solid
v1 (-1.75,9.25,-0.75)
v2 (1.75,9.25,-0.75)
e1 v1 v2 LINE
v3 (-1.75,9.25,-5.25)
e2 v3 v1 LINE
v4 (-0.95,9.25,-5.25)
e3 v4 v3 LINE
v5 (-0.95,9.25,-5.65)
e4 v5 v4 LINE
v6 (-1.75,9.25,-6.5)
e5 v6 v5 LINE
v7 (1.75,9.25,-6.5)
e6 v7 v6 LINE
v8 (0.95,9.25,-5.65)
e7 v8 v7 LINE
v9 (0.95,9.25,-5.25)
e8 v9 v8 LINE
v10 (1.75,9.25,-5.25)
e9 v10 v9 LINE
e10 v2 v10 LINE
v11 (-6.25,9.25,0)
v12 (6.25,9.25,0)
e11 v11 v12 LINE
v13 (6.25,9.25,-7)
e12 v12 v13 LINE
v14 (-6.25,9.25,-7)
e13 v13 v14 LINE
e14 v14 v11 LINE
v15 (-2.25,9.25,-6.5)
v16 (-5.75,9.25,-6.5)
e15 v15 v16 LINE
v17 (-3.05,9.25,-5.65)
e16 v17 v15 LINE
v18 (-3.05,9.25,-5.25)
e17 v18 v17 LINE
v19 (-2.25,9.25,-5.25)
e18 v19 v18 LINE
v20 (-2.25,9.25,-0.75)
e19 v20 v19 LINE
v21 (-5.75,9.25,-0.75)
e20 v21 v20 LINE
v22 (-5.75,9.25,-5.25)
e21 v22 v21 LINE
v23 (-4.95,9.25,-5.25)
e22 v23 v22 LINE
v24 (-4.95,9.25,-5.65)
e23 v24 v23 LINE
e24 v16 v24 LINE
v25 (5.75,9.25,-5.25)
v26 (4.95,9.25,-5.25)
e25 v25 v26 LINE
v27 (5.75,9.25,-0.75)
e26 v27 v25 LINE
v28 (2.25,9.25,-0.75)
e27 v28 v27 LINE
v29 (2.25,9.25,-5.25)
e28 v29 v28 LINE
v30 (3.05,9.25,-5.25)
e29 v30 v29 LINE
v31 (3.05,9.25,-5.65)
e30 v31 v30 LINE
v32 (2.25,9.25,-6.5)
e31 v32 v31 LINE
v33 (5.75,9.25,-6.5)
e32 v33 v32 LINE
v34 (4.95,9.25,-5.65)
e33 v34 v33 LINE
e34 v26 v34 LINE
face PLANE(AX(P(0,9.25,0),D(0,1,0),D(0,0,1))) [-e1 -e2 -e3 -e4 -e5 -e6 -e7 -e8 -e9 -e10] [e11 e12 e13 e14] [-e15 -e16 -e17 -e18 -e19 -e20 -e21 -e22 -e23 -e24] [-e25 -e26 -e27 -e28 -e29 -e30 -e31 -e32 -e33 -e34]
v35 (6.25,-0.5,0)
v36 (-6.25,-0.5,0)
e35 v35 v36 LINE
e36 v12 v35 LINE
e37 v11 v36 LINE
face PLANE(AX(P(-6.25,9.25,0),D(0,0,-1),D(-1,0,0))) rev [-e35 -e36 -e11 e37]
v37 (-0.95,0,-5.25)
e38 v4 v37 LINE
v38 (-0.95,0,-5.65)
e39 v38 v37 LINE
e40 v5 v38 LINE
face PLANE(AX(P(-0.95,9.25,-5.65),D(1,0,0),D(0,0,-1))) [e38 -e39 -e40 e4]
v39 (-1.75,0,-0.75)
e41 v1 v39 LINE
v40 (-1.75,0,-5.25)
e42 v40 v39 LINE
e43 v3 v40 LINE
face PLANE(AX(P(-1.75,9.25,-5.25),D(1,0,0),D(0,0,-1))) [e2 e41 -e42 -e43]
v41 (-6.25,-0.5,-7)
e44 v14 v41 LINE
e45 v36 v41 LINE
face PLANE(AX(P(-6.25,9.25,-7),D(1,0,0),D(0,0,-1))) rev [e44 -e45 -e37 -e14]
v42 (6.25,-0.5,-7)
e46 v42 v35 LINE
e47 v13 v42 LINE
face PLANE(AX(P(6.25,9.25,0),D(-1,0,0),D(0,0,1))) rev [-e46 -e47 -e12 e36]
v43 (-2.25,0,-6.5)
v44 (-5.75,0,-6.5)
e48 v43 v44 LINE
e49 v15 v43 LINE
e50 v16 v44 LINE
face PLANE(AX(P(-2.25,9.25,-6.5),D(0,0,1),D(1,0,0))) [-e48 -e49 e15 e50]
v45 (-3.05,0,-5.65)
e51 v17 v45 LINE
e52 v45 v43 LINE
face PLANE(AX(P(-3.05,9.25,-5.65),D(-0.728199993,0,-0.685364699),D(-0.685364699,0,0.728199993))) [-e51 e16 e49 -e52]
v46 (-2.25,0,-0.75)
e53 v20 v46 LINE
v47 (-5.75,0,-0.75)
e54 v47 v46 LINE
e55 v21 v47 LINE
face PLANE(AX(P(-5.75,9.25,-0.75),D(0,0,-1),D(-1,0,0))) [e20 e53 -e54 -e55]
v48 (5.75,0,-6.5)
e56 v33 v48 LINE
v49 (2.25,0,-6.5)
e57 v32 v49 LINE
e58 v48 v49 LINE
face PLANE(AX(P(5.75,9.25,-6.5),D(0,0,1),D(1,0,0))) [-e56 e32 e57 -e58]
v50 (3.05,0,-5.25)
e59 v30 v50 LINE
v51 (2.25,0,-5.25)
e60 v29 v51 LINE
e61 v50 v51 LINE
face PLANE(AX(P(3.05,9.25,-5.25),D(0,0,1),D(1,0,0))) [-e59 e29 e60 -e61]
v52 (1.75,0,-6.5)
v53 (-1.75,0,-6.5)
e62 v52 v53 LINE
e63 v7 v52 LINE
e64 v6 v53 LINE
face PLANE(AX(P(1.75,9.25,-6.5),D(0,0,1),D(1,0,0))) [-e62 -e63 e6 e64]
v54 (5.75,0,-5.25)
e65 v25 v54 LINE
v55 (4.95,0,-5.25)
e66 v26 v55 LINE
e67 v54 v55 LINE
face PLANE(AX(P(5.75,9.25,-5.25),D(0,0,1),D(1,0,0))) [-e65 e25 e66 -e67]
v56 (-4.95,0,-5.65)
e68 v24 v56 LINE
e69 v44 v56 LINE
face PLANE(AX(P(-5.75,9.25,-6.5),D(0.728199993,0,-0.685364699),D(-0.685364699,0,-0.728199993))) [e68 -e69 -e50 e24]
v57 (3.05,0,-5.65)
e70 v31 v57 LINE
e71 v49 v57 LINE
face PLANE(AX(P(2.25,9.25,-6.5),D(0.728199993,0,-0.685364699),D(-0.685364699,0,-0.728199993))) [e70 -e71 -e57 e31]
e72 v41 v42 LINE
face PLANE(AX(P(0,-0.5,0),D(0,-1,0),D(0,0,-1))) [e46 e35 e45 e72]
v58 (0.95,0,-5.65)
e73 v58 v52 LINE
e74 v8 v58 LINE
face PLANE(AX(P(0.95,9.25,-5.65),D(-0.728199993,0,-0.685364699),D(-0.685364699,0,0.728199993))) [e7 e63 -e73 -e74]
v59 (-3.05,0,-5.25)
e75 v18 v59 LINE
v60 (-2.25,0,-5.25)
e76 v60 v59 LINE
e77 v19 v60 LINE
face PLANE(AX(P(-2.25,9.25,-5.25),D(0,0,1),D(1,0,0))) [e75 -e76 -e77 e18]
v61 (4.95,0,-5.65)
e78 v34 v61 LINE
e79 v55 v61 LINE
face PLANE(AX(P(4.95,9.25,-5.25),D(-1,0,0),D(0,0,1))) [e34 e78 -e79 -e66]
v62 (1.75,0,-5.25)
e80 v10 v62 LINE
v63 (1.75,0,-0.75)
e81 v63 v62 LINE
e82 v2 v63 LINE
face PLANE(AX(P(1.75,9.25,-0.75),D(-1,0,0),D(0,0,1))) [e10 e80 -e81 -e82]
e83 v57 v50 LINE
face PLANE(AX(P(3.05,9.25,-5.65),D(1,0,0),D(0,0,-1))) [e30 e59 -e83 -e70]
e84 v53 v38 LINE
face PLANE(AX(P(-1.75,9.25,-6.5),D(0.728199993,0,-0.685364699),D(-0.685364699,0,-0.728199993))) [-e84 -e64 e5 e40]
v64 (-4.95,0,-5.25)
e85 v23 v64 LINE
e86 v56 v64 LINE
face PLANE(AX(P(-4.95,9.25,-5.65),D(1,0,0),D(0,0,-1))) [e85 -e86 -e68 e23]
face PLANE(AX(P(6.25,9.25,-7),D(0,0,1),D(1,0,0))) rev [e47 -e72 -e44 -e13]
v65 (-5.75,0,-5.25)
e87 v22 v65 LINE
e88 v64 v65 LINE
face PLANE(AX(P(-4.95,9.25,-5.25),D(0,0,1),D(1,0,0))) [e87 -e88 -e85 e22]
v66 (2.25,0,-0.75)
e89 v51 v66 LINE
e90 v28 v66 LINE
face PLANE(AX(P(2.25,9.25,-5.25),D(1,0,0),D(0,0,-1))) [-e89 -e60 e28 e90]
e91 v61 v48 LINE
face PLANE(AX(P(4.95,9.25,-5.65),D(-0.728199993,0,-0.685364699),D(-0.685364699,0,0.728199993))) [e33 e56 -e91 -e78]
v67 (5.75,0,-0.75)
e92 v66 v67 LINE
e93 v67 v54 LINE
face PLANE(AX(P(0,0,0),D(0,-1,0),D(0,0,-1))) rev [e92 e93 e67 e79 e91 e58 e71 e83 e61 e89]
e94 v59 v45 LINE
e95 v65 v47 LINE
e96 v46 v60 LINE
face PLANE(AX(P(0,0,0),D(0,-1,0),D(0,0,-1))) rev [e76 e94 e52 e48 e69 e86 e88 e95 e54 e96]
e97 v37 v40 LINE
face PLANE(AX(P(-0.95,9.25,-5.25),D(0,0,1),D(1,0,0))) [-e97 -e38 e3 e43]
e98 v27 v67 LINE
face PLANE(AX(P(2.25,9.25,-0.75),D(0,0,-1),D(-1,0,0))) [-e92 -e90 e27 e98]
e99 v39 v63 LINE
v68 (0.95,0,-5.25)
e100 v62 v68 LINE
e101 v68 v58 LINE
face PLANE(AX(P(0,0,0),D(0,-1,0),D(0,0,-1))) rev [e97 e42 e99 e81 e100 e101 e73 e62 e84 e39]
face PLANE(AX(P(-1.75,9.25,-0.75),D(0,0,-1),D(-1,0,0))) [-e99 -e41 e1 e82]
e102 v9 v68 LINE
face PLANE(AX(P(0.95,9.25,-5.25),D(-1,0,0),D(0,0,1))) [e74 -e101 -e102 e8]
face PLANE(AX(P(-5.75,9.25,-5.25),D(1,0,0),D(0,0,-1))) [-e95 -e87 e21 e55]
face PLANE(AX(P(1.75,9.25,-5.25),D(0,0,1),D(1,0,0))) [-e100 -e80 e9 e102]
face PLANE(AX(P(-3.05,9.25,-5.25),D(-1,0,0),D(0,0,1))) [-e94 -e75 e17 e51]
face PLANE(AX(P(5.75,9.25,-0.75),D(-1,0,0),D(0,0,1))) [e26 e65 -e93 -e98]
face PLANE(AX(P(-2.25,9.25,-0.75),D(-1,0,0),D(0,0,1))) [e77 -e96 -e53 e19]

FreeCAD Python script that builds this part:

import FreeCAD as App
import Part
import Sketcher
from FreeCAD import Vector
Q = App.Units.Quantity

doc = App.newDocument("Part")
params = doc.addObject("Spreadsheet::Sheet", "Params")
for row, (alias, value) in enumerate([
    ("sketch1_height", "7 mm"),
    ("sketch1_width", "12.5 mm"),
    ("sketch1_width2", "0.8 mm"),
    ("sketch1_width3", "3.5 mm"),
    ("sketch1_height2", "4.5 mm"),
    ("pad1_length", "9.25 mm"),
    ("sketch2_height", "7 mm"),
    ("sketch2_width", "12.5 mm"),
    ("pad2_length", "0.5 mm"),
], start=1):
    params.set(f"A{row}", alias)
    params.set(f"B{row}", "=" + value)
    params.setAlias(f"B{row}", alias)

body = doc.addObject("PartDesign::Body", "Body")

# Sketch on XZ plane
sketch1 = body.newObject("Sketcher::SketchObject", "Sketch")
sketch1.AttachmentSupport = (doc.getObject("XZ_Plane"), [""])
sketch1.MapMode = "FlatFace"
sketch1.addGeometry([
    Part.LineSegment(Vector(-6.25, -7, 0), Vector(-6.25, 0, 0)),  # 0
    Part.LineSegment(Vector(-6.25, 0, 0), Vector(6.25, 0, 0)),  # 1
    Part.LineSegment(Vector(6.25, 0, 0), Vector(6.25, -7, 0)),  # 2
    Part.LineSegment(Vector(6.25, -7, 0), Vector(-6.25, -7, 0)),  # 3
    Part.LineSegment(Vector(-5.75, -0.75, 0), Vector(-5.75, -5.25, 0)),  # 4
    Part.LineSegment(Vector(-5.75, -5.25, 0), Vector(-4.95, -5.25, 0)),  # 5
    Part.LineSegment(Vector(-4.95, -5.25, 0), Vector(-4.95, -5.65, 0)),  # 6
    Part.LineSegment(Vector(-4.95, -5.65, 0), Vector(-5.75, -6.5, 0)),  # 7
    Part.LineSegment(Vector(-5.75, -6.5, 0), Vector(-2.25, -6.5, 0)),  # 8
    Part.LineSegment(Vector(-2.25, -6.5, 0), Vector(-3.05, -5.65, 0)),  # 9
    Part.LineSegment(Vector(-3.05, -5.65, 0), Vector(-3.05, -5.25, 0)),  # 10
    Part.LineSegment(Vector(-3.05, -5.25, 0), Vector(-2.25, -5.25, 0)),  # 11
    Part.LineSegment(Vector(-2.25, -5.25, 0), Vector(-2.25, -0.75, 0)),  # 12
    Part.LineSegment(Vector(-2.25, -0.75, 0), Vector(-5.75, -0.75, 0)),  # 13
    Part.LineSegment(Vector(-1.75, -0.75, 0), Vector(-1.75, -5.25, 0)),  # 14
    Part.LineSegment(Vector(-1.75, -5.25, 0), Vector(-0.95, -5.25, 0)),  # 15
    Part.LineSegment(Vector(-0.95, -5.25, 0), Vector(-0.95, -5.65, 0)),  # 16
    Part.LineSegment(Vector(-0.95, -5.65, 0), Vector(-1.75, -6.5, 0)),  # 17
    Part.LineSegment(Vector(-1.75, -6.5, 0), Vector(1.75, -6.5, 0)),  # 18
    Part.LineSegment(Vector(1.75, -6.5, 0), Vector(0.95, -5.65, 0)),  # 19
    Part.LineSegment(Vector(0.95, -5.65, 0), Vector(0.95, -5.25, 0)),  # 20
    Part.LineSegment(Vector(0.95, -5.25, 0), Vector(1.75, -5.25, 0)),  # 21
    Part.LineSegment(Vector(1.75, -5.25, 0), Vector(1.75, -0.75, 0)),  # 22
    Part.LineSegment(Vector(1.75, -0.75, 0), Vector(-1.75, -0.75, 0)),  # 23
    Part.LineSegment(Vector(2.25, -0.75, 0), Vector(2.25, -5.25, 0)),  # 24
    Part.LineSegment(Vector(2.25, -5.25, 0), Vector(3.05, -5.25, 0)),  # 25
    Part.LineSegment(Vector(3.05, -5.25, 0), Vector(3.05, -5.65, 0)),  # 26
    Part.LineSegment(Vector(3.05, -5.65, 0), Vector(2.25, -6.5, 0)),  # 27
    Part.LineSegment(Vector(2.25, -6.5, 0), Vector(5.75, -6.5, 0)),  # 28
    Part.LineSegment(Vector(5.75, -6.5, 0), Vector(4.95, -5.65, 0)),  # 29
    Part.LineSegment(Vector(4.95, -5.65, 0), Vector(4.95, -5.25, 0)),  # 30
    Part.LineSegment(Vector(4.95, -5.25, 0), Vector(5.75, -5.25, 0)),  # 31
    Part.LineSegment(Vector(5.75, -5.25, 0), Vector(5.75, -0.75, 0)),  # 32
    Part.LineSegment(Vector(5.75, -0.75, 0), Vector(2.25, -0.75, 0)),  # 33
], False)
sketch1.addConstraint([
    Sketcher.Constraint("Coincident", 0, 2, 1, 1),
    Sketcher.Constraint("Coincident", 1, 2, 2, 1),
    Sketcher.Constraint("Coincident", 2, 2, 3, 1),
    Sketcher.Constraint("Coincident", 3, 2, 0, 1),
    Sketcher.Constraint("Coincident", 4, 2, 5, 1),
    Sketcher.Constraint("Coincident", 5, 2, 6, 1),
    Sketcher.Constraint("Coincident", 6, 2, 7, 1),
    Sketcher.Constraint("Coincident", 7, 2, 8, 1),
    Sketcher.Constraint("Coincident", 8, 2, 9, 1),
    Sketcher.Constraint("Coincident", 9, 2, 10, 1),
    Sketcher.Constraint("Coincident", 10, 2, 11, 1),
    Sketcher.Constraint("Coincident", 11, 2, 12, 1),
    Sketcher.Constraint("Coincident", 12, 2, 13, 1),
    Sketcher.Constraint("Coincident", 13, 2, 4, 1),
    Sketcher.Constraint("Coincident", 14, 2, 15, 1),
    Sketcher.Constraint("Coincident", 15, 2, 16, 1),
    Sketcher.Constraint("Coincident", 16, 2, 17, 1),
    Sketcher.Constraint("Coincident", 17, 2, 18, 1),
    Sketcher.Constraint("Coincident", 18, 2, 19, 1),
    Sketcher.Constraint("Coincident", 19, 2, 20, 1),
    Sketcher.Constraint("Coincident", 20, 2, 21, 1),
    Sketcher.Constraint("Coincident", 21, 2, 22, 1),
    Sketcher.Constraint("Coincident", 22, 2, 23, 1),
    Sketcher.Constraint("Coincident", 23, 2, 14, 1),
    Sketcher.Constraint("Coincident", 24, 2, 25, 1),
    Sketcher.Constraint("Coincident", 25, 2, 26, 1),
    Sketcher.Constraint("Coincident", 26, 2, 27, 1),
    Sketcher.Constraint("Coincident", 27, 2, 28, 1),
    Sketcher.Constraint("Coincident", 28, 2, 29, 1),
    Sketcher.Constraint("Coincident", 29, 2, 30, 1),
    Sketcher.Constraint("Coincident", 30, 2, 31, 1),
    Sketcher.Constraint("Coincident", 31, 2, 32, 1),
    Sketcher.Constraint("Coincident", 32, 2, 33, 1),
    Sketcher.Constraint("Coincident", 33, 2, 24, 1),
    Sketcher.Constraint("Vertical", 0),
    Sketcher.Constraint("Horizontal", 1),
    Sketcher.Constraint("Vertical", 2),
    Sketcher.Constraint("Horizontal", 3),
    Sketcher.Constraint("Vertical", 4),
    Sketcher.Constraint("Horizontal", 5),
    Sketcher.Constraint("Vertical", 6),
    Sketcher.Constraint("Horizontal", 8),
    Sketcher.Constraint("Vertical", 10),
    Sketcher.Constraint("Horizontal", 11),
    Sketcher.Constraint("Vertical", 12),
    Sketcher.Constraint("Horizontal", 13),
    Sketcher.Constraint("Vertical", 14),
    Sketcher.Constraint("Horizontal", 15),
    Sketcher.Constraint("Vertical", 16),
    Sketcher.Constraint("Horizontal", 18),
    Sketcher.Constraint("Vertical", 20),
    Sketcher.Constraint("Horizontal", 21),
    Sketcher.Constraint("Vertical", 22),
    Sketcher.Constraint("Horizontal", 23),
    Sketcher.Constraint("Vertical", 24),
    Sketcher.Constraint("Horizontal", 25),
    Sketcher.Constraint("Vertical", 26),
    Sketcher.Constraint("Horizontal", 28),
    Sketcher.Constraint("Vertical", 30),
    Sketcher.Constraint("Horizontal", 31),
    Sketcher.Constraint("Vertical", 32),
    Sketcher.Constraint("Horizontal", 33),
    Sketcher.Constraint("Symmetric", 0, 2, 1, 2, -1, 1),
    Sketcher.Constraint("Symmetric", 16, 2, 19, 2, -2),
    Sketcher.Constraint("Symmetric", 14, 2, 21, 2, -2),
    Sketcher.Constraint("Symmetric", 11, 2, 24, 2, -2),
    Sketcher.Constraint("Symmetric", 9, 2, 26, 2, -2),
    Sketcher.Constraint("Symmetric", 8, 2, 27, 2, -2),
    Sketcher.Constraint("Symmetric", 6, 2, 29, 2, -2),
    Sketcher.Constraint("Symmetric", 4, 2, 31, 2, -2),
    Sketcher.Constraint("Parallel", 7, 17),
    Sketcher.Constraint("Parallel", 9, 19),
    Sketcher.Constraint("Parallel", 17, 27),
    Sketcher.Constraint("Parallel", 19, 29),
    Sketcher.Constraint("Horizontal", 6, 2, 9, 2),
    Sketcher.Constraint("Horizontal", 5, 2, 10, 2),
    Sketcher.Constraint("Horizontal", 11, 2, 14, 2),
    Sketcher.Constraint("Horizontal", 9, 2, 16, 2),
    Sketcher.Constraint("Horizontal", 8, 2, 17, 2),
    Sketcher.Constraint("Horizontal", 13, 2, 22, 2),
    Sketcher.Constraint("Horizontal", 23, 2, 32, 2),
    Sketcher.Constraint("Vertical", 4, 2, 7, 2),
    Sketcher.Constraint("Vertical", 8, 2, 11, 2),
    Sketcher.Constraint("Vertical", 14, 2, 17, 2),
    Sketcher.Constraint("Equal", 13, 18),
    Sketcher.Constraint("DistanceY", 0, 1, 0, 2, Q("7 mm")),
    Sketcher.Constraint("DistanceX", 1, 1, 1, 2, Q("12.5 mm")),
    Sketcher.Constraint("DistanceX", 5, 1, 5, 2, Q("0.8 mm")),
    Sketcher.Constraint("DistanceX", 8, 1, 8, 2, Q("3.5 mm")),
    Sketcher.Constraint("DistanceY", 4, 2, 4, 1, Q("4.5 mm")),
    Sketcher.Constraint("DistanceY", 6, 2, 6, 1, Q("0.4 mm")),
    Sketcher.Constraint("DistanceX", 4, 2, 2, 2, Q("12 mm")),
    Sketcher.Constraint("DistanceY", 7, 2, -1, 1, Q("6.5 mm")),
    Sketcher.Constraint("DistanceY", 4, 2, -1, 1, Q("5.25 mm")),
])
sketch1.setExpression("Constraints[85]", "Params.sketch1_height")
sketch1.setExpression("Constraints[86]", "Params.sketch1_width")
sketch1.setExpression("Constraints[87]", "Params.sketch1_width2")
sketch1.setExpression("Constraints[88]", "Params.sketch1_width3")
sketch1.setExpression("Constraints[89]", "Params.sketch1_height2")
pad1 = body.newObject("PartDesign::Pad", "Pad")
pad1.Profile = sketch1
pad1.setExpression("Length", "Params.pad1_length")
pad1.Reversed = True

# Sketch on XZ plane
sketch2 = body.newObject("Sketcher::SketchObject", "Sketch001")
sketch2.AttachmentSupport = (doc.getObject("XZ_Plane"), [""])
sketch2.MapMode = "FlatFace"
sketch2.addGeometry([
    Part.LineSegment(Vector(-6, 0, 0), Vector(-6, -7, 0)),
    Part.LineSegment(Vector(-6, -7, 0), Vector(6, -7, 0)),
    Part.LineSegment(Vector(6, -7, 0), Vector(6, 0, 0)),
    Part.LineSegment(Vector(6, 0, 0), Vector(-6, 0, 0)),
], False)
sketch2.addConstraint([
    Sketcher.Constraint("Coincident", 0, 2, 1, 1),
    Sketcher.Constraint("Coincident", 1, 2, 2, 1),
    Sketcher.Constraint("Coincident", 2, 2, 3, 1),
    Sketcher.Constraint("Coincident", 3, 2, 0, 1),
    Sketcher.Constraint("Vertical", 0),
    Sketcher.Constraint("Horizontal", 1),
    Sketcher.Constraint("Vertical", 2),
    Sketcher.Constraint("Horizontal", 3),
    Sketcher.Constraint("Symmetric", 2, 2, 3, 2, -1, 1),
    Sketcher.Constraint("DistanceY", 0, 2, 0, 1, Q("7 mm")),
    Sketcher.Constraint("DistanceX", 1, 1, 1, 2, Q("12.5 mm")),
])
sketch2.setExpression("Constraints[9]", "Params.sketch2_height")
sketch2.setExpression("Constraints[10]", "Params.sketch2_width")
pad2 = body.newObject("PartDesign::Pad", "Pad001")
pad2.Profile = sketch2
pad2.setExpression("Length", "Params.pad2_length")

doc.recompute()
